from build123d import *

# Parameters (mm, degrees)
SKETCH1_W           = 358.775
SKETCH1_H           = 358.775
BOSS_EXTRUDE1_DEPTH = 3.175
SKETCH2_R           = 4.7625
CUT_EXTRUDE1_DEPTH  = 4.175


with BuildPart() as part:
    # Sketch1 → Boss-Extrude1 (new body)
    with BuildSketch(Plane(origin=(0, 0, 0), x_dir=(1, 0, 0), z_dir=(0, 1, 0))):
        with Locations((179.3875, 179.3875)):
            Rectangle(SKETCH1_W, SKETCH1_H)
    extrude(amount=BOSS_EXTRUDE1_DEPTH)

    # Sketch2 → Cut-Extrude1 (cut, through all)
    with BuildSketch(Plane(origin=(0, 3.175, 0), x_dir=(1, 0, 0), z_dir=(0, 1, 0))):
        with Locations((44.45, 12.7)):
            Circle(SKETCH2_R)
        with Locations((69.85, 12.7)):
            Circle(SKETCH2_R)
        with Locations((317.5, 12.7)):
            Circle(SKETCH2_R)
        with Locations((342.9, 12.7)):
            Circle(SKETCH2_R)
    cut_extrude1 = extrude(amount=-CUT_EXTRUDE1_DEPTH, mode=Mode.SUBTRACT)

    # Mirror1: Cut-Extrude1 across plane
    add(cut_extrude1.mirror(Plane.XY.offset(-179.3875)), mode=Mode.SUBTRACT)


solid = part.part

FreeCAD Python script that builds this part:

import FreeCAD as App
import Part
import Sketcher

V = App.Vector
Q = App.Units.Quantity

doc = App.newDocument("Part")
body = doc.addObject("PartDesign::Body", "Body")

# Sketch on XZ plane
sketch1 = body.newObject("Sketcher::SketchObject", "Sketch")
sketch1.AttachmentSupport = (doc.getObject("XZ_Plane"), [""])
sketch1.MapMode = "FlatFace"
sketch1.addGeometry(Part.LineSegment(V(0, -358.775, 0), V(0, 0, 0)), False)
sketch1.addGeometry(Part.LineSegment(V(0, 0, 0), V(358.775, 0, 0)), False)
sketch1.addGeometry(Part.LineSegment(V(358.775, 0, 0), V(358.775, -358.775, 0)), False)
sketch1.addGeometry(Part.LineSegment(V(358.775, -358.775, 0), V(0, -358.775, 0)), False)
sketch1.addConstraint(Sketcher.Constraint("Coincident", 0, 2, 1, 1))
sketch1.addConstraint(Sketcher.Constraint("Coincident", 1, 2, 2, 1))
sketch1.addConstraint(Sketcher.Constraint("Coincident", 2, 2, 3, 1))
sketch1.addConstraint(Sketcher.Constraint("Coincident", 3, 2, 0, 1))
sketch1.addConstraint(Sketcher.Constraint("Vertical", 0))
sketch1.addConstraint(Sketcher.Constraint("Horizontal", 1))
sketch1.addConstraint(Sketcher.Constraint("Vertical", 2))
sketch1.addConstraint(Sketcher.Constraint("Horizontal", 3))
sketch1.addConstraint(Sketcher.Constraint("Coincident", 0, 2, -1, 1))
sketch1.addConstraint(Sketcher.Constraint("Equal", 3, 0))
sketch1.addConstraint(Sketcher.Constraint("DistanceX", 1, 1, 1, 2, Q("14.125 in")))
pad1 = body.newObject("PartDesign::Pad", "Pad")
pad1.Profile = sketch1
pad1.Length = Q("0.125 in")
pad1.Reversed = True

# Sketch on XZ plane
sketch2 = body.newObject("Sketcher::SketchObject", "Sketch001")
sketch2.AttachmentSupport = (doc.getObject("XZ_Plane"), [""])
sketch2.MapMode = "FlatFace"
sketch2.AttachmentOffset = App.Placement(V(0, 0, -0.125 * 25.4), App.Rotation())
sketch2.addGeometry(Part.Circle(V(44.45, -12.7, 0), V(0, 0, 1), 4.7625), False)
sketch2.addGeometry(Part.Circle(V(69.85, -12.7, 0), V(0, 0, 1), 4.7625), False)
sketch2.addGeometry(Part.Circle(V(317.5, -12.7, 0), V(0, 0, 1), 4.7625), False)
sketch2.addGeometry(Part.Circle(V(342.9, -12.7, 0), V(0, 0, 1), 4.7625), False)
sketch2.addConstraint(Sketcher.Constraint("Equal", 0, 1))
sketch2.addConstraint(Sketcher.Constraint("Equal", 1, 2))
sketch2.addConstraint(Sketcher.Constraint("Equal", 2, 3))
sketch2.addConstraint(Sketcher.Constraint("Horizontal", 0, 3, 1, 3))
sketch2.addConstraint(Sketcher.Constraint("Horizontal", 1, 3, 2, 3))
sketch2.addConstraint(Sketcher.Constraint("Horizontal", 2, 3, 3, 3))
sketch2.addConstraint(Sketcher.Constraint("Diameter", 0, Q("0.375 in")))
sketch2.addConstraint(Sketcher.Constraint("DistanceX", 0, 3, 1, 3, Q("1 in")))
sketch2.addConstraint(Sketcher.Constraint("DistanceX", 2, 3, 3, 3, Q("1 in")))
sketch2.addConstraint(Sketcher.Constraint("DistanceY", 0, 3, -1, 1, Q("0.5 in")))
sketch2.addConstraint(Sketcher.Constraint("DistanceX", -1, 1, 2, 3, Q("12.5 in")))
sketch2.addConstraint(Sketcher.Constraint("DistanceX", -1, 1, 0, 3, Q("1.75 in")))
pocket1 = body.newObject("PartDesign::Pocket", "Pocket")
pocket1.Profile = sketch2
pocket1.Type = "ThroughAll"
pocket1.Reversed = True
doc.recompute()

datumplane = body.newObject("PartDesign::Plane", "DatumPlane")
datumplane.AttachmentSupport = (doc.getObject("XY_Plane"), [""])
datumplane.MapMode = "FlatFace"
datumplane.AttachmentOffset = App.Placement(V(0, 0, -7.0625 * 25.4), App.Rotation())
mirrored = body.newObject("PartDesign::Mirrored", "Mirrored")
mirrored.Originals = [pocket1]
mirrored.MirrorPlane = (datumplane, [""])
body.Tip = mirrored

doc.recompute()
